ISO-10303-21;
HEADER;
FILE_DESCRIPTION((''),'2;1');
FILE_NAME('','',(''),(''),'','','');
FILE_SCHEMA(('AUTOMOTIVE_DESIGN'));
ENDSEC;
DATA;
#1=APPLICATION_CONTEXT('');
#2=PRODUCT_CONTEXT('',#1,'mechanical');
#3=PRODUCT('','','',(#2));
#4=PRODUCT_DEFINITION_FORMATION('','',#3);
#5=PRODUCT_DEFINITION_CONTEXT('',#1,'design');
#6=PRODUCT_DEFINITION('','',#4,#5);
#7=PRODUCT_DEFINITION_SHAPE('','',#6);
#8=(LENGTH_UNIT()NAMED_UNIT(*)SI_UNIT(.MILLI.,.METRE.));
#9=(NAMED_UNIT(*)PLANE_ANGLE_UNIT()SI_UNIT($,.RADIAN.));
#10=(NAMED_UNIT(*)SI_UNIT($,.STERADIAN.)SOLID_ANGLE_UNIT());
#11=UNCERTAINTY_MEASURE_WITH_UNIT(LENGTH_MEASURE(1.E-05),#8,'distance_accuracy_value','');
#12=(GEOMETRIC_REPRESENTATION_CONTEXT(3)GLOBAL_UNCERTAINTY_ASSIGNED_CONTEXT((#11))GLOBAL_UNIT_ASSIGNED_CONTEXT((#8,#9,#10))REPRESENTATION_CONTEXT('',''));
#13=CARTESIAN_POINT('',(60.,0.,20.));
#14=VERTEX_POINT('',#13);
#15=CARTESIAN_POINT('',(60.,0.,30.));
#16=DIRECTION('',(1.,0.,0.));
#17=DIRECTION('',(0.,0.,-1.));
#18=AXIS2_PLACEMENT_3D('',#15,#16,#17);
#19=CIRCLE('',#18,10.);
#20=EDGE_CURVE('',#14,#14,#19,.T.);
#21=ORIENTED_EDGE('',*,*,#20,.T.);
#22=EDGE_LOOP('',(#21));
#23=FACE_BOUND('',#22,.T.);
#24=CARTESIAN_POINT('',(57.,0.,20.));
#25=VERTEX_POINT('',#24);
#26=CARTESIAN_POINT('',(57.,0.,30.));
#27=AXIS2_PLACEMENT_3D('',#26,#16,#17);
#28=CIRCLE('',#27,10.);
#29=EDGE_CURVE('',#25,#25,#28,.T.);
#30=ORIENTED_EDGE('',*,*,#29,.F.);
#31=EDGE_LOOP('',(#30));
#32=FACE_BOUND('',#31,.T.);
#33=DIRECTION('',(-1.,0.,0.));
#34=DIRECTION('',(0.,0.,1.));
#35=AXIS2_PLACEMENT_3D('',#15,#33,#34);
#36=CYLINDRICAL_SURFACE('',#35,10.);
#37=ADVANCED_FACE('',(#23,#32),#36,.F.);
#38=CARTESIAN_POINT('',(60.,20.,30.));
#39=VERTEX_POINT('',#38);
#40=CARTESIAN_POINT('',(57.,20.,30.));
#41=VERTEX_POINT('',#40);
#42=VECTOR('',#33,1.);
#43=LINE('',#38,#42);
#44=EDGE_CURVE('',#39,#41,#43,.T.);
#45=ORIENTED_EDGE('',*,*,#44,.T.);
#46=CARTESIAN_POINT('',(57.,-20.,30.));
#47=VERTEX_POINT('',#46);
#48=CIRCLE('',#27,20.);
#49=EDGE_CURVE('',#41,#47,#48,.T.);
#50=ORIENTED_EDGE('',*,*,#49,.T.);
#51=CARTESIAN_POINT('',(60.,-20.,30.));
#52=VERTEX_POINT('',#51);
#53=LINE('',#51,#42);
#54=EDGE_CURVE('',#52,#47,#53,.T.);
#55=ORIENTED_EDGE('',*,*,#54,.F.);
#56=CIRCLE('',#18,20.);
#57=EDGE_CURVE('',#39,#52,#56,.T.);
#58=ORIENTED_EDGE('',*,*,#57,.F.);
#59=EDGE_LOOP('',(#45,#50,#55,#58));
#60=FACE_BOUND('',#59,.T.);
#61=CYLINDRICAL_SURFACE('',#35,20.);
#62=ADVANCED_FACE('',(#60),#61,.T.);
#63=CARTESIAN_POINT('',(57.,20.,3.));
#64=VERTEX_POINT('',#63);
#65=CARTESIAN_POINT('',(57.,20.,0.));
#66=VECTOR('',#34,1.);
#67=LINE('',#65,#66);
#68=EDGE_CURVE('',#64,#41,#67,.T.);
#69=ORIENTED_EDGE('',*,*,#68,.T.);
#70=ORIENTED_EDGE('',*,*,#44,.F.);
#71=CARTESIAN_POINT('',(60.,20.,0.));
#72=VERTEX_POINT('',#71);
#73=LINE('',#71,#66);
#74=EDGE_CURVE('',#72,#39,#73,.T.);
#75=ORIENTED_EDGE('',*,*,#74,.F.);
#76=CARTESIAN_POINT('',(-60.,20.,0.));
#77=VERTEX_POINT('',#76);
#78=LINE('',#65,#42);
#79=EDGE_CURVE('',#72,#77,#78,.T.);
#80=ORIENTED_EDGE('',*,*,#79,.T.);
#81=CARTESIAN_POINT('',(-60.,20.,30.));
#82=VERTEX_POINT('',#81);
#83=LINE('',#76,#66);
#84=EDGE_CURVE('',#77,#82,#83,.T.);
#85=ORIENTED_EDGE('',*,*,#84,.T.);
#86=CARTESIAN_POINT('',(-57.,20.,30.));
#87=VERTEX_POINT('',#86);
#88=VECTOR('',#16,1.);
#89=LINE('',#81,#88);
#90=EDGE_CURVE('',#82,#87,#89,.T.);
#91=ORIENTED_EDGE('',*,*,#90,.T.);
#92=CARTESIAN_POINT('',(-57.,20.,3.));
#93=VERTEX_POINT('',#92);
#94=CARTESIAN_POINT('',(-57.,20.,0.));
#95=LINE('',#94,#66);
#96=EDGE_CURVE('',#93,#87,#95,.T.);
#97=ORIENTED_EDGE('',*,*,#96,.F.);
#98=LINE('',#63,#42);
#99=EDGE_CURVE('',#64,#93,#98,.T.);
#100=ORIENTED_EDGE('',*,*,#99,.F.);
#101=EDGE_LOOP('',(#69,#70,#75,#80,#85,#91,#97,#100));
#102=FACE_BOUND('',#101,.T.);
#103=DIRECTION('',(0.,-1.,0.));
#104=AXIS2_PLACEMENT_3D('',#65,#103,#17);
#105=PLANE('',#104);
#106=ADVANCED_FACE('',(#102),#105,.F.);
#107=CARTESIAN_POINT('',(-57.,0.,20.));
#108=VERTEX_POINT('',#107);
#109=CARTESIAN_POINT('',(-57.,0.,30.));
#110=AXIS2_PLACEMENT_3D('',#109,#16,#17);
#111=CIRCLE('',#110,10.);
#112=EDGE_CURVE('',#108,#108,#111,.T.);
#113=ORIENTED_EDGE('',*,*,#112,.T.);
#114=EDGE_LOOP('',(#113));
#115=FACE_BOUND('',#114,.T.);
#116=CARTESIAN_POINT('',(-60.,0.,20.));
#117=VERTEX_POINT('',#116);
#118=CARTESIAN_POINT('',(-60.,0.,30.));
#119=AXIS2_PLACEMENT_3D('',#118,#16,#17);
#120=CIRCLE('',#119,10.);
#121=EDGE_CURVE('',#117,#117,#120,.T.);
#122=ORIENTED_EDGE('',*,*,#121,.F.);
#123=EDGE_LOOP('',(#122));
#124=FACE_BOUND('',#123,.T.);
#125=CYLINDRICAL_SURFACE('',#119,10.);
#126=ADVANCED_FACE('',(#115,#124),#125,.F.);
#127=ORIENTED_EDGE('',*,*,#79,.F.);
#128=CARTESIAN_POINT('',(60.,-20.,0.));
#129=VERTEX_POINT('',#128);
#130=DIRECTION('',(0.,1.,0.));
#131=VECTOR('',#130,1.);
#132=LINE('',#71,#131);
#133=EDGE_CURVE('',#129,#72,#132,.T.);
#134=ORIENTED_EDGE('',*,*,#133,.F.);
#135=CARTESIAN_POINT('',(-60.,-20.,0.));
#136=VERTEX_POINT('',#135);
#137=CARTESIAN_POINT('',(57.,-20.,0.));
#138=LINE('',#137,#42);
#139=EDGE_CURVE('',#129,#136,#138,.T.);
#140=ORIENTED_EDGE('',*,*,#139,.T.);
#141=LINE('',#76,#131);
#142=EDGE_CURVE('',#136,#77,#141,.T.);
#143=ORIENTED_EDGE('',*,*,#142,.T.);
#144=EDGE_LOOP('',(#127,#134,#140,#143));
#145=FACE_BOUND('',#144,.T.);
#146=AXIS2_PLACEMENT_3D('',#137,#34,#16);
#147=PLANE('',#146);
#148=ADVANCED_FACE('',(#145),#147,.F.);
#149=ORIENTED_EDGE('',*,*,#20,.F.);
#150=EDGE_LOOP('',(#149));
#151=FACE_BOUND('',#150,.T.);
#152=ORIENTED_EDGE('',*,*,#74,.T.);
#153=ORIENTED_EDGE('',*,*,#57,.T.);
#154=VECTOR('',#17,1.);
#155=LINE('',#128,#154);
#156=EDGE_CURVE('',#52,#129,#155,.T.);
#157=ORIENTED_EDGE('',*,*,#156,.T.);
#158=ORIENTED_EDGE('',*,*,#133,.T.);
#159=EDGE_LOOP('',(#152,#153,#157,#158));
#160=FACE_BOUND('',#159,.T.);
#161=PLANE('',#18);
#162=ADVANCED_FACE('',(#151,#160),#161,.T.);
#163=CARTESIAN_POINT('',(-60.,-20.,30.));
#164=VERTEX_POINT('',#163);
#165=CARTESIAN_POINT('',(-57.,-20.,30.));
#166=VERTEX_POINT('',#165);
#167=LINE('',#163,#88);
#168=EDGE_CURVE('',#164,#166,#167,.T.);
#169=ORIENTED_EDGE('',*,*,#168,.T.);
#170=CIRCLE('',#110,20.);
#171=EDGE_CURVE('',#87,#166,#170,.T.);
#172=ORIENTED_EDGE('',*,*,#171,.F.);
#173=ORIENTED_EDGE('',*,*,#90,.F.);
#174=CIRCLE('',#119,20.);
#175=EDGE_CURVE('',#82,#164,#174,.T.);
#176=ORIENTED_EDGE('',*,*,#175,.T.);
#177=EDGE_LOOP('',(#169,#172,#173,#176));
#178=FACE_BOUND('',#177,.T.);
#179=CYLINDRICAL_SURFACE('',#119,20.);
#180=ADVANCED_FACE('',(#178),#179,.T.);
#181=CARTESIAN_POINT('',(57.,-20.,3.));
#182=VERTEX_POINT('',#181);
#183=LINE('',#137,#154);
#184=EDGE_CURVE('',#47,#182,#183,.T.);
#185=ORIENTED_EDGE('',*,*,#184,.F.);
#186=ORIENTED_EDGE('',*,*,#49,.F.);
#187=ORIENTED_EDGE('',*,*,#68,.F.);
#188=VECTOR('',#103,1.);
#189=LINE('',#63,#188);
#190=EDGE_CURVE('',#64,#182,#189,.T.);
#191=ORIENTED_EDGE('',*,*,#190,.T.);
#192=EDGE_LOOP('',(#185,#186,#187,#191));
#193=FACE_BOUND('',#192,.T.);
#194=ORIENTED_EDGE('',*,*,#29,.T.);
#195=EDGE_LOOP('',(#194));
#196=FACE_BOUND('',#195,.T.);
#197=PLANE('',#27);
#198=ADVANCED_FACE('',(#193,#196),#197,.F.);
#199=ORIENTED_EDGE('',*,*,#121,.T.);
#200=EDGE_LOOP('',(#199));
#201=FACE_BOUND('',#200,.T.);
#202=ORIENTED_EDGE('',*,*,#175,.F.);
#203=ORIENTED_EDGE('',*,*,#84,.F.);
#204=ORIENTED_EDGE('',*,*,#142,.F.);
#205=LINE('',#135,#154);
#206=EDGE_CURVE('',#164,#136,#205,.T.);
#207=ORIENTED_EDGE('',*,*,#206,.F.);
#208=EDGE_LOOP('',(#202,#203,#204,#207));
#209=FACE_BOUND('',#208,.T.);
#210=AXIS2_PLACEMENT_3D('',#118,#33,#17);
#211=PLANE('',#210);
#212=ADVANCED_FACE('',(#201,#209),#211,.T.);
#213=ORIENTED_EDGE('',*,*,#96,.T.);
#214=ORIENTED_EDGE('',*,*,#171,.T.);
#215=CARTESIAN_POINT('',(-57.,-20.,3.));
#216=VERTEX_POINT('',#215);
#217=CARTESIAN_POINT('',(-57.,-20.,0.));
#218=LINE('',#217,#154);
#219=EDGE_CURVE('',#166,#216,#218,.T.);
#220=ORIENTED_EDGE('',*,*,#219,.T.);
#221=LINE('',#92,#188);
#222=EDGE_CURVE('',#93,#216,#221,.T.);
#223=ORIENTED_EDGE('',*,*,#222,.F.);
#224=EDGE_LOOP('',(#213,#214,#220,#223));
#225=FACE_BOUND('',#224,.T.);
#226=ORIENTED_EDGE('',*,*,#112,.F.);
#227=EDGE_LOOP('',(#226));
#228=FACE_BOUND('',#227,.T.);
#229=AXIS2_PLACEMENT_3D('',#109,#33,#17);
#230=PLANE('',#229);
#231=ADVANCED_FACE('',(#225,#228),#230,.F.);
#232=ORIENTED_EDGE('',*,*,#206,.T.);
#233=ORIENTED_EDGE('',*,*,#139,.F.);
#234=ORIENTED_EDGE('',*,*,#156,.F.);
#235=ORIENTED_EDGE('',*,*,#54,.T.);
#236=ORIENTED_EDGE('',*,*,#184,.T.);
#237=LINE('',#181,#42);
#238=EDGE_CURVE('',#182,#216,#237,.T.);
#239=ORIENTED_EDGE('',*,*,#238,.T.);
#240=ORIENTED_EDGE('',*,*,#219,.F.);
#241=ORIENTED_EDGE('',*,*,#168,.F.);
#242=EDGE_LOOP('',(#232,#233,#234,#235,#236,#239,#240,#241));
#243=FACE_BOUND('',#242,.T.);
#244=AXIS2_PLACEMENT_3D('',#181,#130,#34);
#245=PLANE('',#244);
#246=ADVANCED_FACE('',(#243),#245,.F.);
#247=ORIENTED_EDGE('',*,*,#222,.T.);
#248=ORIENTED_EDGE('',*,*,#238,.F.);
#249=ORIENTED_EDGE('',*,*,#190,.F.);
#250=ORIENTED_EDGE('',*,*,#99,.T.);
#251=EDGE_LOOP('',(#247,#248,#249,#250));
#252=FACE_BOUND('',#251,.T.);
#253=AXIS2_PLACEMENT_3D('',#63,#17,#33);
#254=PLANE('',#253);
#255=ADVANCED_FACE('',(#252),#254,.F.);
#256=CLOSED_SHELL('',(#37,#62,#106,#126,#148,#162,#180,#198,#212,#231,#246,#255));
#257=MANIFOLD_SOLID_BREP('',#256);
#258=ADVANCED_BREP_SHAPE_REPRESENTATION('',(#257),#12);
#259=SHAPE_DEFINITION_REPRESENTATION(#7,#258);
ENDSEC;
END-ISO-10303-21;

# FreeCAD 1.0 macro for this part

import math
import FreeCAD as App
import Part
import Sketcher
Q = App.Units.Quantity


def add_polygon(sketch, points):
    """Adds a closed chain of lines whose ends are joined by coincident constraints."""
    first, n = sketch.GeometryCount, len(points)
    for a, b in zip(points, points[1:] + points[:1]):
        sketch.addGeometry(Part.LineSegment(App.Vector(*a, 0), App.Vector(*b, 0)), False)
    for i in range(n):
        sketch.addConstraint(Sketcher.Constraint("Coincident", first + i, 2, first + (i + 1) % n, 1))

doc = App.newDocument("Part")
body = doc.addObject("PartDesign::Body", "Body")

sketch1 = doc.addObject("Sketcher::SketchObject", "Sketch")
body.addObject(sketch1)
sketch1.AttachmentSupport = (doc.YZ_Plane, [""])
sketch1.MapMode = "FlatFace"
add_polygon(sketch1, [(20, 3), (-20, 3), (-20, 0), (20, 0)])
sketch1.addConstraint([
    Sketcher.Constraint("Horizontal", 0),
    Sketcher.Constraint("Vertical", 1),
    Sketcher.Constraint("Horizontal", 2),
    Sketcher.Constraint("Vertical", 3),
    Sketcher.Constraint("Symmetric", 1, 2, 2, 2, -1, 1),
    Sketcher.Constraint("DistanceX", 0, 2, 0, 1, Q("40 mm")),
    Sketcher.Constraint("DistanceY", 1, 2, 1, 1, Q("3 mm")),
])
pad1 = doc.addObject("PartDesign::Pad", "Pad")
body.addObject(pad1)
pad1.Profile = sketch1
pad1.Length = 114
pad1.Midplane = True

sketch2 = doc.addObject("Sketcher::SketchObject", "Sketch001")
body.addObject(sketch2)
sketch2.AttachmentSupport = (doc.YZ_Plane, [""])
sketch2.MapMode = "FlatFace"
sketch2.AttachmentOffset = App.Placement(App.Vector(0, 0, 57), App.Rotation())
sketch2.addGeometry([
    Part.LineSegment(App.Vector(20, 0, 0), App.Vector(20, 30, 0)),
    Part.ArcOfCircle(Part.Circle(App.Vector(0, 30, 0), App.Vector(0, 0, 1), 20), math.radians(0), math.radians(180)),
    Part.LineSegment(App.Vector(-20, 30, 0), App.Vector(-20, 0, 0)),
    Part.LineSegment(App.Vector(-20, 0, 0), App.Vector(20, 0, 0)),
    Part.Circle(App.Vector(0, 30, 0), App.Vector(0, 0, 1), 10),
], False)
sketch2.addConstraint([
    Sketcher.Constraint("Tangent", 0, 2, 1, 1),
    Sketcher.Constraint("Tangent", 1, 2, 2, 1),
    Sketcher.Constraint("Coincident", 2, 2, 3, 1),
    Sketcher.Constraint("Coincident", 3, 2, 0, 1),
    Sketcher.Constraint("Vertical", 0),
    Sketcher.Constraint("Vertical", 2),
    Sketcher.Constraint("Horizontal", 3),
    Sketcher.Constraint("Coincident", 4, 3, 1, 3),
    Sketcher.Constraint("Symmetric", 2, 2, 3, 2, -1, 1),
    Sketcher.Constraint("Diameter", 4, Q("20 mm")),
    Sketcher.Constraint("Radius", 1, Q("20 mm")),
    Sketcher.Constraint("DistanceY", 0, 1, 0, 2, Q("30 mm")),
])
pad2 = doc.addObject("PartDesign::Pad", "Pad001")
body.addObject(pad2)
pad2.Profile = sketch2
pad2.Length = 3
doc.recompute()

mirrored = doc.addObject("PartDesign::Mirrored", "Mirrored")
body.addObject(mirrored)
mirrored.Originals = [pad2]
mirrored.MirrorPlane = (doc.YZ_Plane, [""])
body.Tip = mirrored

doc.recompute()
